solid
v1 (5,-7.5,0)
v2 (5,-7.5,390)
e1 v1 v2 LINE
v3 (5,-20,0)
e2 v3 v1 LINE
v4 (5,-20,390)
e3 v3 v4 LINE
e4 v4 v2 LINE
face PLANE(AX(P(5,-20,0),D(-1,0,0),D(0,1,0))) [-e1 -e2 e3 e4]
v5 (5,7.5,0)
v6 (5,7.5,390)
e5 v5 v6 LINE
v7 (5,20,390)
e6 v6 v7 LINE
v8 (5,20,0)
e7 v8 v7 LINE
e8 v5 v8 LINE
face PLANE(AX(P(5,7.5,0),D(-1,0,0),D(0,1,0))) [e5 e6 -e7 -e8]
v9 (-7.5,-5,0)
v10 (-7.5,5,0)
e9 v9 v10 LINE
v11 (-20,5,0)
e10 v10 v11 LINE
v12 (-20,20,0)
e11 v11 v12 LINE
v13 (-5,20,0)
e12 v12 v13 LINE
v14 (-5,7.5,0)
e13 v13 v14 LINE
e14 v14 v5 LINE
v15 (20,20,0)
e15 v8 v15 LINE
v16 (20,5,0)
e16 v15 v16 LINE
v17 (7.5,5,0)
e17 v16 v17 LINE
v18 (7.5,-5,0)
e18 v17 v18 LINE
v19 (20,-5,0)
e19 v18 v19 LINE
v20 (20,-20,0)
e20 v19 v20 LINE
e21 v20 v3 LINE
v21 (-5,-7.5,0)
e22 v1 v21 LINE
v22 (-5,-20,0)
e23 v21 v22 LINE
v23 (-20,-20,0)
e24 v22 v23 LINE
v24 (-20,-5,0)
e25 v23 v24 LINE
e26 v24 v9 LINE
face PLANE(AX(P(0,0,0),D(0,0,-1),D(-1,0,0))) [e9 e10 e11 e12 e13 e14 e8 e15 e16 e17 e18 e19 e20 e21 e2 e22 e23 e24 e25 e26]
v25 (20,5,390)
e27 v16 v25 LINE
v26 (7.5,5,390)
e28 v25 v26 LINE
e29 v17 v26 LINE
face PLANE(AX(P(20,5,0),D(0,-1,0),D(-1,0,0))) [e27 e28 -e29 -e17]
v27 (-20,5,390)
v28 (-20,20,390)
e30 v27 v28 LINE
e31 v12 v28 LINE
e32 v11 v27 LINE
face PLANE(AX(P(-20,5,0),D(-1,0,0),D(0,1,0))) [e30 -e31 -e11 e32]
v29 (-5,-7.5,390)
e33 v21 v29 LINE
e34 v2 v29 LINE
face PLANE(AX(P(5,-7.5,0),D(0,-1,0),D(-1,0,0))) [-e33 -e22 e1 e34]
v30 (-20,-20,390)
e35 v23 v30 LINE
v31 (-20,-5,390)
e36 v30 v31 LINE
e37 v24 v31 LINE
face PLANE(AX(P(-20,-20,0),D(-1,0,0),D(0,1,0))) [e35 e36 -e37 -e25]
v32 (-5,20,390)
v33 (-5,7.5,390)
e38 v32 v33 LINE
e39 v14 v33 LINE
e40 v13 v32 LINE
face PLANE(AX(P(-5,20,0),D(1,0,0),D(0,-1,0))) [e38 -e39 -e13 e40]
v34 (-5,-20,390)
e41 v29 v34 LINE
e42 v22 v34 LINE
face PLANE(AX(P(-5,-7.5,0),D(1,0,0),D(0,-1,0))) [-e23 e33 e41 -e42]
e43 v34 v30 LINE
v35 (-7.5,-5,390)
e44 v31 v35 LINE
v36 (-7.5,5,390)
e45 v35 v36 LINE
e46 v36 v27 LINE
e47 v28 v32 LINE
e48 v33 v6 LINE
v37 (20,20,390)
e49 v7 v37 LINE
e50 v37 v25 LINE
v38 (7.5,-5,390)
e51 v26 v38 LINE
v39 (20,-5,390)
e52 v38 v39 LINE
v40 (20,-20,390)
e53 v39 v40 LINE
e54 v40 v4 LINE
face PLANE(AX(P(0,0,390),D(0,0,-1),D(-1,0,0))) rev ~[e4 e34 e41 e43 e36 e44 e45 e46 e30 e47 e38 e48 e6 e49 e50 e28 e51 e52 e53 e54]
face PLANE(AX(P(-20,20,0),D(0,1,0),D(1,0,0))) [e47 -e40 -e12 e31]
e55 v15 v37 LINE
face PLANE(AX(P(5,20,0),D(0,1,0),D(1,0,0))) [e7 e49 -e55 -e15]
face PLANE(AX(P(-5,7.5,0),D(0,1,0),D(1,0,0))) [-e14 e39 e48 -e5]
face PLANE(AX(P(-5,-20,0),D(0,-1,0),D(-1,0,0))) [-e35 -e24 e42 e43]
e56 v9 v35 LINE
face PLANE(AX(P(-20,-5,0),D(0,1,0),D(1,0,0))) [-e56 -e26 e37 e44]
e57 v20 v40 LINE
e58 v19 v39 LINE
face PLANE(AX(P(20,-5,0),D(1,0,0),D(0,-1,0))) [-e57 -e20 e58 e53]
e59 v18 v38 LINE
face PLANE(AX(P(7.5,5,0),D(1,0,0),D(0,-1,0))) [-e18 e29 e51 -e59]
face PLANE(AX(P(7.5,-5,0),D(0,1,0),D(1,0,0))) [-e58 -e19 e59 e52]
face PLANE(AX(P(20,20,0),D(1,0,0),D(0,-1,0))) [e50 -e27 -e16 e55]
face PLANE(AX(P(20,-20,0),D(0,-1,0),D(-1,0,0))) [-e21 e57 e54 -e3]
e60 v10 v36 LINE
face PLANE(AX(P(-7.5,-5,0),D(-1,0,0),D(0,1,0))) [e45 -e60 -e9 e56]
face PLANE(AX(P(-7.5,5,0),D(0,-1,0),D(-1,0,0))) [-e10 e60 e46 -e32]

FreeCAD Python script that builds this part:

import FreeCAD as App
import Part
import Sketcher
Q = App.Units.Quantity


def add_polygon(sketch, points):
    """Adds a closed chain of lines whose ends are joined by coincident constraints."""
    first, n = sketch.GeometryCount, len(points)
    for a, b in zip(points, points[1:] + points[:1]):
        sketch.addGeometry(Part.LineSegment(App.Vector(*a, 0), App.Vector(*b, 0)), False)
    for i in range(n):
        sketch.addConstraint(Sketcher.Constraint("Coincident", first + i, 2, first + (i + 1) % n, 1))

doc = App.newDocument("Part")
body = doc.addObject("PartDesign::Body", "Body")

# Sketch on XY plane
sketch1 = body.newObject("Sketcher::SketchObject", "Sketch")
sketch1.AttachmentSupport = (doc.getObject("XY_Plane"), [""])
sketch1.MapMode = "FlatFace"
add_polygon(sketch1, [(-20, -5), (-20, -20), (-5, -20), (-5, -8), (5, -8), (5, -20), (20, -20), (20, -5), (8, -5), (8, 5), (20, 5), (20, 20), (5, 20), (5, 8), (-5, 8), (-5, 20), (-20, 20), (-20, 5), (-8, 5), (-8, -5)])  # lines 0-19
sketch1.addConstraint([
    Sketcher.Constraint("Vertical", 0),
    Sketcher.Constraint("Horizontal", 1),
    Sketcher.Constraint("Vertical", 2),
    Sketcher.Constraint("Horizontal", 3),
    Sketcher.Constraint("Vertical", 4),
    Sketcher.Constraint("Horizontal", 5),
    Sketcher.Constraint("Vertical", 6),
    Sketcher.Constraint("Horizontal", 7),
    Sketcher.Constraint("Vertical", 8),
    Sketcher.Constraint("Horizontal", 9),
    Sketcher.Constraint("Vertical", 10),
    Sketcher.Constraint("Horizontal", 11),
    Sketcher.Constraint("Vertical", 12),
    Sketcher.Constraint("Horizontal", 13),
    Sketcher.Constraint("Vertical", 14),
    Sketcher.Constraint("Horizontal", 15),
    Sketcher.Constraint("Vertical", 16),
    Sketcher.Constraint("Horizontal", 17),
    Sketcher.Constraint("Vertical", 18),
    Sketcher.Constraint("Horizontal", 19),
    Sketcher.Constraint("Symmetric", 0, 2, 10, 2, -1, 1),
    Sketcher.Constraint("Symmetric", 2, 2, 12, 2, -1, 1),
    Sketcher.Constraint("Symmetric", 4, 2, 14, 2, -1, 1),
    Sketcher.Constraint("Symmetric", 6, 2, 16, 2, -1, 1),
    Sketcher.Constraint("Symmetric", 8, 2, 18, 2, -1, 1),
    Sketcher.Constraint("Symmetric", 1, 2, 4, 2, -2),
    Sketcher.Constraint("Symmetric", 9, 2, 16, 2, -2),
    Sketcher.Constraint("Equal", 15, 0),
    Sketcher.Constraint("Equal", 19, 2),
    Sketcher.Constraint("Equal", 13, 8),
    Sketcher.Constraint("DistanceX", 1, 1, 1, 2, Q("15 mm")),
    Sketcher.Constraint("DistanceX", 3, 1, 3, 2, Q("10 mm")),
    Sketcher.Constraint("DistanceX", 7, 2, 7, 1, Q("12.5 mm")),
])
pad1 = body.newObject("PartDesign::Pad", "Pad")
pad1.Profile = sketch1
pad1.Length = 390

doc.recompute()
